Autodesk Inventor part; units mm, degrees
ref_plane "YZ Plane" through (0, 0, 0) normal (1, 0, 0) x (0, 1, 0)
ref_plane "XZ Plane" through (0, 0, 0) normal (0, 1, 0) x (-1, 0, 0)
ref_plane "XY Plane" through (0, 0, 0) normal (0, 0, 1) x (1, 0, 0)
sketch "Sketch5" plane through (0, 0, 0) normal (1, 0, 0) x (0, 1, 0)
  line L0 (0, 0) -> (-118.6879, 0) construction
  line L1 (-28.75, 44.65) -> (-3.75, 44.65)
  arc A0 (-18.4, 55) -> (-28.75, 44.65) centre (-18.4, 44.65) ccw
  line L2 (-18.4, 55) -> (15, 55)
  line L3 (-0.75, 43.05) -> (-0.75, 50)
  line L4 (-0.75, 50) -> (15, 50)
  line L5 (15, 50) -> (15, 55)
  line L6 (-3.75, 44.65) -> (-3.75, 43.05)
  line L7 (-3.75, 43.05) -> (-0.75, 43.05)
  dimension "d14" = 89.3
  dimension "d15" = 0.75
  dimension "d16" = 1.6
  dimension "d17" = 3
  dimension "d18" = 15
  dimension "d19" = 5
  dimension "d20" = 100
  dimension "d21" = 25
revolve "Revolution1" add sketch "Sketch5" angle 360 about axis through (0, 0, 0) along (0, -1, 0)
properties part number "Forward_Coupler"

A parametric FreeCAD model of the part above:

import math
import FreeCAD as App
import Part
import Sketcher

V = App.Vector

doc = App.newDocument("Part")
body = doc.addObject("PartDesign::Body", "Body")

# Sketch on YZ plane
sketch1 = body.newObject("Sketcher::SketchObject", "Sketch")
sketch1.AttachmentSupport = (doc.getObject("YZ_Plane"), [""])
sketch1.MapMode = "FlatFace"
sketch1.addGeometry([
    Part.ArcOfCircle(Part.Circle(V(-18.4, 44.65, 0), V(0, 0, 1), 10.35), math.radians(90), math.radians(180)),  # 0
    Part.LineSegment(V(-28.75, 44.65, 0), V(-3.75, 44.65, 0)),  # 1
    Part.LineSegment(V(-3.75, 44.65, 0), V(-3.75, 43.05, 0)),  # 2
    Part.LineSegment(V(-3.75, 43.05, 0), V(-0.75, 43.05, 0)),  # 3
    Part.LineSegment(V(-0.75, 43.05, 0), V(-0.75, 50, 0)),  # 4
    Part.LineSegment(V(-0.75, 50, 0), V(15, 50, 0)),  # 5
    Part.LineSegment(V(15, 50, 0), V(15, 55, 0)),  # 6
    Part.LineSegment(V(15, 55, 0), V(-18.4, 55, 0)),  # 7
], False)
sketch1.addConstraint([
    Sketcher.Constraint("Coincident", 0, 2, 1, 1),
    Sketcher.Constraint("Coincident", 1, 2, 2, 1),
    Sketcher.Constraint("Coincident", 2, 2, 3, 1),
    Sketcher.Constraint("Coincident", 3, 2, 4, 1),
    Sketcher.Constraint("Coincident", 4, 2, 5, 1),
    Sketcher.Constraint("Coincident", 5, 2, 6, 1),
    Sketcher.Constraint("Coincident", 6, 2, 7, 1),
    Sketcher.Constraint("Tangent", 7, 2, 0, 1),
    Sketcher.Constraint("Horizontal", 1),
    Sketcher.Constraint("Vertical", 2),
    Sketcher.Constraint("Horizontal", 3),
    Sketcher.Constraint("Vertical", 4),
    Sketcher.Constraint("Horizontal", 5),
    Sketcher.Constraint("Vertical", 6),
    Sketcher.Constraint("Horizontal", 7),
    Sketcher.Constraint("DistanceX", 1, 1, 1, 2, 25.0),
    Sketcher.Constraint("DistanceX", 3, 1, 3, 2, 3.0),
    Sketcher.Constraint("DistanceY", 6, 1, 6, 2, 5.0),
    Sketcher.Constraint("DistanceY", 2, 2, 2, 1, 1.6),
    Sketcher.Constraint("DistanceX", -1, 1, 5, 2, 15.0),
    Sketcher.Constraint("DistanceY", 2, 2, 0, 3, 1.6),
    Sketcher.Constraint("DistanceX", 3, 2, -1, 1, 0.75),
    Sketcher.Constraint("Radius", 0, 10.35),
    Sketcher.Constraint("DistanceY", -1, 1, 4, 2, 50.0),
])
revolution = body.newObject("PartDesign::Revolution", "Revolution")
revolution.Profile = sketch1
revolution.ReferenceAxis = (sketch1, ["H_Axis"])
revolution.Angle = 360

doc.recompute()
